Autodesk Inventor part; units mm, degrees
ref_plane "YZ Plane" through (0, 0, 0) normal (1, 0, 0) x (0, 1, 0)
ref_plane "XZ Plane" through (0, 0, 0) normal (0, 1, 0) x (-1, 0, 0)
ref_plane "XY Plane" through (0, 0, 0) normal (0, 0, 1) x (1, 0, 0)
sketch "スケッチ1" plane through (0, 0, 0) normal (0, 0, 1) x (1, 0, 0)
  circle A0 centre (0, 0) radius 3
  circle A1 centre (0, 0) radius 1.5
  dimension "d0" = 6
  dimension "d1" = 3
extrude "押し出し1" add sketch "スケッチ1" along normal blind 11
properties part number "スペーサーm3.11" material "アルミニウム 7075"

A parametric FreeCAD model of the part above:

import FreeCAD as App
import Part
import Sketcher

doc = App.newDocument("Part")
body = doc.addObject("PartDesign::Body", "Body")

sketch1 = body.newObject("Sketcher::SketchObject", "Sketch")
sketch1.AttachmentSupport = (doc.getObject("XY_Plane"), [""])
sketch1.MapMode = "FlatFace"
sketch1.addGeometry([
    Part.Circle(App.Vector(0, 0, 0), App.Vector(0, 0, 1), 3),
    Part.Circle(App.Vector(0, 0, 0), App.Vector(0, 0, 1), 1.5),
], False)
sketch1.addConstraint([
    Sketcher.Constraint("Coincident", 0, 3, -1, 1),
    Sketcher.Constraint("Coincident", 1, 3, -1, 1),
    Sketcher.Constraint("Diameter", 0, 6.0),
    Sketcher.Constraint("Diameter", 1, 3.0),
])
pad1 = body.newObject("PartDesign::Pad", "Pad")
pad1.Profile = sketch1
pad1.Length = 11

doc.recompute()
